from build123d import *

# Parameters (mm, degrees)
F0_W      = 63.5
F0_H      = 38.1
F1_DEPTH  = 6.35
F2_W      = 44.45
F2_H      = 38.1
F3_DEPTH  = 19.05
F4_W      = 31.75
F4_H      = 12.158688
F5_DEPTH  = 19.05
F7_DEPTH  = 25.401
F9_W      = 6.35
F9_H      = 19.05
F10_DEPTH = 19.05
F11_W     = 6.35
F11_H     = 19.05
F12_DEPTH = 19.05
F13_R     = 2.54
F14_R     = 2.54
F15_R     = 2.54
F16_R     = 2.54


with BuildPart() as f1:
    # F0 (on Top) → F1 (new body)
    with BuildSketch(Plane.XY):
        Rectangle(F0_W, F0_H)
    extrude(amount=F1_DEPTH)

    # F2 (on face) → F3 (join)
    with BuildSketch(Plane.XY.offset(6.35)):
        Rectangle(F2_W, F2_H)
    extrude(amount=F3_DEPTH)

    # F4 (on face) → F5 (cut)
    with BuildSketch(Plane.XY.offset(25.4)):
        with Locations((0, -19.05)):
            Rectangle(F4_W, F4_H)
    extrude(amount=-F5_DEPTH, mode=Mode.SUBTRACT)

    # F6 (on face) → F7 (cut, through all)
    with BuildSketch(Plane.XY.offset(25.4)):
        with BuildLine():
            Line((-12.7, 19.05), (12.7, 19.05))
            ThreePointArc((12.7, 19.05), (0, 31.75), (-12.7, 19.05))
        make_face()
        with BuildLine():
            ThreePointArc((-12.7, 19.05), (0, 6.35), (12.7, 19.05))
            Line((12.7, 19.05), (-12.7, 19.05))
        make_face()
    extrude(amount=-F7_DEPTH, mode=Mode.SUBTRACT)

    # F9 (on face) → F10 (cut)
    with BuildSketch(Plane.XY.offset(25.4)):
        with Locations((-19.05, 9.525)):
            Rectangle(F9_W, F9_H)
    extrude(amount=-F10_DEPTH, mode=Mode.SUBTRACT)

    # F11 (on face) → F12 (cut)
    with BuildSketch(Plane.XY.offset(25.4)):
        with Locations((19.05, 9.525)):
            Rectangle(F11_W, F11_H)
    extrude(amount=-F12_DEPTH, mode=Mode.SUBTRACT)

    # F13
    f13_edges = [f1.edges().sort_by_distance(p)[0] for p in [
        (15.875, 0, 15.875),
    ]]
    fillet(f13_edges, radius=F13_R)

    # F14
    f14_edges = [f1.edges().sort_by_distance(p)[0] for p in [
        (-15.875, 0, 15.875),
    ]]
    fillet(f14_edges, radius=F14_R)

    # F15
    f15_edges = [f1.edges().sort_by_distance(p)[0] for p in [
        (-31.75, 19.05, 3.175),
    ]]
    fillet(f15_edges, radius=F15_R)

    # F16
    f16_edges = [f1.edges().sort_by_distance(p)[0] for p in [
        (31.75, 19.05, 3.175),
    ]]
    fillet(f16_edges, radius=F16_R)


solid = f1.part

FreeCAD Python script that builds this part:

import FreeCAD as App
import Part
import Sketcher

V = App.Vector
Q = App.Units.Quantity


def edges_at(feature, points):
    """Names of the edges that pass closest to the given points."""
    edges = feature.Shape.Edges
    near = lambda p: min(range(len(edges)), key=lambda i: edges[i].distToShape(Part.Vertex(*p))[0])
    return sorted({f"Edge{near(p) + 1}" for p in points})


def add_polygon(sketch, points):
    """Adds a closed chain of lines whose ends are joined by coincident constraints."""
    first, n = sketch.GeometryCount, len(points)
    for a, b in zip(points, points[1:] + points[:1]):
        sketch.addGeometry(Part.LineSegment(App.Vector(*a, 0), App.Vector(*b, 0)), False)
    for i in range(n):
        sketch.addConstraint(Sketcher.Constraint("Coincident", first + i, 2, first + (i + 1) % n, 1))

doc = App.newDocument("Part")
body = doc.addObject("PartDesign::Body", "Body")

sketch1 = body.newObject("Sketcher::SketchObject", "Sketch")
sketch1.AttachmentSupport = (doc.getObject("XY_Plane"), [""])
sketch1.MapMode = "FlatFace"
add_polygon(sketch1, [(-31.75, 19.05), (-31.75, -19.05), (31.75, -19.05), (31.75, 19.05)])
sketch1.addConstraint([
    Sketcher.Constraint("Vertical", 0),
    Sketcher.Constraint("Horizontal", 1),
    Sketcher.Constraint("Vertical", 2),
    Sketcher.Constraint("Horizontal", 3),
    Sketcher.Constraint("Symmetric", 0, 2, 2, 2, -1, 1),
    Sketcher.Constraint("DistanceX", 1, 1, 1, 2, Q("2.5 in")),
    Sketcher.Constraint("DistanceY", 0, 2, 0, 1, Q("1.5 in")),
])
pad1 = body.newObject("PartDesign::Pad", "Pad")
pad1.Profile = sketch1
pad1.Length = Q("0.25 in")

sketch2 = body.newObject("Sketcher::SketchObject", "Sketch001")
sketch2.AttachmentSupport = (doc.getObject("XY_Plane"), [""])
sketch2.MapMode = "FlatFace"
sketch2.AttachmentOffset = App.Placement(V(0, 0, 0.25 * 25.4), App.Rotation())
add_polygon(sketch2, [(-22.225, 19.05), (-22.225, -19.05), (22.225, -19.05), (22.225, 19.05)])
sketch2.addConstraint([
    Sketcher.Constraint("Vertical", 0),
    Sketcher.Constraint("Horizontal", 1),
    Sketcher.Constraint("Vertical", 2),
    Sketcher.Constraint("Horizontal", 3),
    Sketcher.Constraint("Symmetric", 0, 2, 2, 2, -1, 1),
    Sketcher.Constraint("DistanceY", 0, 2, 0, 1, Q("1.5 in")),
    Sketcher.Constraint("DistanceX", 1, 1, 1, 2, Q("1.75 in")),
])
pad2 = body.newObject("PartDesign::Pad", "Pad001")
pad2.Profile = sketch2
pad2.Length = Q("0.75 in")

sketch3 = body.newObject("Sketcher::SketchObject", "Sketch002")
sketch3.AttachmentSupport = (doc.getObject("XY_Plane"), [""])
sketch3.MapMode = "FlatFace"
sketch3.AttachmentOffset = App.Placement(V(0, 0, 1 * 25.4), App.Rotation())
add_polygon(sketch3, [(-15.875, -12.970656), (-15.875, -25.129344), (15.875, -25.129344), (15.875, -12.970656)])
sketch3.addConstraint([
    Sketcher.Constraint("Vertical", 0),
    Sketcher.Constraint("Horizontal", 1),
    Sketcher.Constraint("Vertical", 2),
    Sketcher.Constraint("Horizontal", 3),
    Sketcher.Constraint("DistanceX", 1, 1, 1, 2, Q("1.25 in")),
    Sketcher.Constraint("DistanceX", 0, 2, -1, 1, Q("0.625 in")),
    Sketcher.Constraint("DistanceY", 0, 2, 0, 1, Q("12.158688 mm")),
    Sketcher.Constraint("DistanceY", 0, 2, -1, 1, Q("25.129344 mm")),
])
pocket1 = body.newObject("PartDesign::Pocket", "Pocket")
pocket1.Profile = sketch3
pocket1.Length = Q("0.75 in")

sketch4 = body.newObject("Sketcher::SketchObject", "Sketch003")
sketch4.AttachmentSupport = (doc.getObject("XY_Plane"), [""])
sketch4.MapMode = "FlatFace"
sketch4.AttachmentOffset = App.Placement(V(0, 0, 1 * 25.4), App.Rotation())
sketch4.addGeometry(Part.Circle(V(0, 19.05, 0), V(0, 0, 1), 12.7), False)
sketch4.addConstraint([
    Sketcher.Constraint("PointOnObject", 0, 3, -2),
    Sketcher.Constraint("Diameter", 0, Q("1 in")),
    Sketcher.Constraint("DistanceY", -1, 1, 0, 3, Q("0.75 in")),
])
pocket2 = body.newObject("PartDesign::Pocket", "Pocket001")
pocket2.Profile = sketch4
pocket2.Type = "ThroughAll"

sketch5 = body.newObject("Sketcher::SketchObject", "Sketch004")
sketch5.AttachmentSupport = (doc.getObject("XY_Plane"), [""])
sketch5.MapMode = "FlatFace"
sketch5.AttachmentOffset = App.Placement(V(0, 0, 1 * 25.4), App.Rotation())
add_polygon(sketch5, [(-22.225, 19.05), (-22.225, 0), (-15.875, 0), (-15.875, 19.05)])
sketch5.addConstraint([
    Sketcher.Constraint("Vertical", 0),
    Sketcher.Constraint("Horizontal", 1),
    Sketcher.Constraint("Vertical", 2),
    Sketcher.Constraint("Horizontal", 3),
    Sketcher.Constraint("PointOnObject", 0, 2, -1),
    Sketcher.Constraint("DistanceX", 1, 1, 1, 2, Q("0.25 in")),
    Sketcher.Constraint("DistanceY", 0, 2, 0, 1, Q("0.75 in")),
    Sketcher.Constraint("DistanceX", 0, 2, -1, 1, Q("0.875 in")),
])
pocket3 = body.newObject("PartDesign::Pocket", "Pocket002")
pocket3.Profile = sketch5
pocket3.Length = Q("0.75 in")

sketch6 = body.newObject("Sketcher::SketchObject", "Sketch005")
sketch6.AttachmentSupport = (doc.getObject("XY_Plane"), [""])
sketch6.MapMode = "FlatFace"
sketch6.AttachmentOffset = App.Placement(V(0, 0, 1 * 25.4), App.Rotation())
add_polygon(sketch6, [(15.875, 19.05), (15.875, 0), (22.225, 0), (22.225, 19.05)])
sketch6.addConstraint([
    Sketcher.Constraint("Vertical", 0),
    Sketcher.Constraint("Horizontal", 1),
    Sketcher.Constraint("Vertical", 2),
    Sketcher.Constraint("Horizontal", 3),
    Sketcher.Constraint("PointOnObject", 0, 2, -1),
    Sketcher.Constraint("DistanceX", 1, 1, 1, 2, Q("0.25 in")),
    Sketcher.Constraint("DistanceY", 0, 2, 0, 1, Q("0.75 in")),
    Sketcher.Constraint("DistanceX", -1, 1, 0, 2, Q("0.625 in")),
])
pocket4 = body.newObject("PartDesign::Pocket", "Pocket003")
pocket4.Profile = sketch6
pocket4.Length = Q("0.75 in")
doc.recompute()

fillet = body.newObject("PartDesign::Fillet", "Fillet")
fillet.Base = (pocket4, edges_at(pocket4, [(15.875, 0, 15.875)]))
fillet.Radius = Q("0.1 in")
doc.recompute()

fillet2 = body.newObject("PartDesign::Fillet", "Fillet001")
fillet2.Base = (fillet, edges_at(fillet, [(-15.875, 0, 15.875)]))
fillet2.Radius = Q("0.1 in")
doc.recompute()

fillet3 = body.newObject("PartDesign::Fillet", "Fillet002")
fillet3.Base = (fillet2, edges_at(fillet2, [(-31.75, 19.05, 3.175)]))
fillet3.Radius = Q("0.1 in")
doc.recompute()

fillet4 = body.newObject("PartDesign::Fillet", "Fillet003")
fillet4.Base = (fillet3, edges_at(fillet3, [(31.75, 19.05, 3.175)]))
fillet4.Radius = Q("0.1 in")

doc.recompute()
